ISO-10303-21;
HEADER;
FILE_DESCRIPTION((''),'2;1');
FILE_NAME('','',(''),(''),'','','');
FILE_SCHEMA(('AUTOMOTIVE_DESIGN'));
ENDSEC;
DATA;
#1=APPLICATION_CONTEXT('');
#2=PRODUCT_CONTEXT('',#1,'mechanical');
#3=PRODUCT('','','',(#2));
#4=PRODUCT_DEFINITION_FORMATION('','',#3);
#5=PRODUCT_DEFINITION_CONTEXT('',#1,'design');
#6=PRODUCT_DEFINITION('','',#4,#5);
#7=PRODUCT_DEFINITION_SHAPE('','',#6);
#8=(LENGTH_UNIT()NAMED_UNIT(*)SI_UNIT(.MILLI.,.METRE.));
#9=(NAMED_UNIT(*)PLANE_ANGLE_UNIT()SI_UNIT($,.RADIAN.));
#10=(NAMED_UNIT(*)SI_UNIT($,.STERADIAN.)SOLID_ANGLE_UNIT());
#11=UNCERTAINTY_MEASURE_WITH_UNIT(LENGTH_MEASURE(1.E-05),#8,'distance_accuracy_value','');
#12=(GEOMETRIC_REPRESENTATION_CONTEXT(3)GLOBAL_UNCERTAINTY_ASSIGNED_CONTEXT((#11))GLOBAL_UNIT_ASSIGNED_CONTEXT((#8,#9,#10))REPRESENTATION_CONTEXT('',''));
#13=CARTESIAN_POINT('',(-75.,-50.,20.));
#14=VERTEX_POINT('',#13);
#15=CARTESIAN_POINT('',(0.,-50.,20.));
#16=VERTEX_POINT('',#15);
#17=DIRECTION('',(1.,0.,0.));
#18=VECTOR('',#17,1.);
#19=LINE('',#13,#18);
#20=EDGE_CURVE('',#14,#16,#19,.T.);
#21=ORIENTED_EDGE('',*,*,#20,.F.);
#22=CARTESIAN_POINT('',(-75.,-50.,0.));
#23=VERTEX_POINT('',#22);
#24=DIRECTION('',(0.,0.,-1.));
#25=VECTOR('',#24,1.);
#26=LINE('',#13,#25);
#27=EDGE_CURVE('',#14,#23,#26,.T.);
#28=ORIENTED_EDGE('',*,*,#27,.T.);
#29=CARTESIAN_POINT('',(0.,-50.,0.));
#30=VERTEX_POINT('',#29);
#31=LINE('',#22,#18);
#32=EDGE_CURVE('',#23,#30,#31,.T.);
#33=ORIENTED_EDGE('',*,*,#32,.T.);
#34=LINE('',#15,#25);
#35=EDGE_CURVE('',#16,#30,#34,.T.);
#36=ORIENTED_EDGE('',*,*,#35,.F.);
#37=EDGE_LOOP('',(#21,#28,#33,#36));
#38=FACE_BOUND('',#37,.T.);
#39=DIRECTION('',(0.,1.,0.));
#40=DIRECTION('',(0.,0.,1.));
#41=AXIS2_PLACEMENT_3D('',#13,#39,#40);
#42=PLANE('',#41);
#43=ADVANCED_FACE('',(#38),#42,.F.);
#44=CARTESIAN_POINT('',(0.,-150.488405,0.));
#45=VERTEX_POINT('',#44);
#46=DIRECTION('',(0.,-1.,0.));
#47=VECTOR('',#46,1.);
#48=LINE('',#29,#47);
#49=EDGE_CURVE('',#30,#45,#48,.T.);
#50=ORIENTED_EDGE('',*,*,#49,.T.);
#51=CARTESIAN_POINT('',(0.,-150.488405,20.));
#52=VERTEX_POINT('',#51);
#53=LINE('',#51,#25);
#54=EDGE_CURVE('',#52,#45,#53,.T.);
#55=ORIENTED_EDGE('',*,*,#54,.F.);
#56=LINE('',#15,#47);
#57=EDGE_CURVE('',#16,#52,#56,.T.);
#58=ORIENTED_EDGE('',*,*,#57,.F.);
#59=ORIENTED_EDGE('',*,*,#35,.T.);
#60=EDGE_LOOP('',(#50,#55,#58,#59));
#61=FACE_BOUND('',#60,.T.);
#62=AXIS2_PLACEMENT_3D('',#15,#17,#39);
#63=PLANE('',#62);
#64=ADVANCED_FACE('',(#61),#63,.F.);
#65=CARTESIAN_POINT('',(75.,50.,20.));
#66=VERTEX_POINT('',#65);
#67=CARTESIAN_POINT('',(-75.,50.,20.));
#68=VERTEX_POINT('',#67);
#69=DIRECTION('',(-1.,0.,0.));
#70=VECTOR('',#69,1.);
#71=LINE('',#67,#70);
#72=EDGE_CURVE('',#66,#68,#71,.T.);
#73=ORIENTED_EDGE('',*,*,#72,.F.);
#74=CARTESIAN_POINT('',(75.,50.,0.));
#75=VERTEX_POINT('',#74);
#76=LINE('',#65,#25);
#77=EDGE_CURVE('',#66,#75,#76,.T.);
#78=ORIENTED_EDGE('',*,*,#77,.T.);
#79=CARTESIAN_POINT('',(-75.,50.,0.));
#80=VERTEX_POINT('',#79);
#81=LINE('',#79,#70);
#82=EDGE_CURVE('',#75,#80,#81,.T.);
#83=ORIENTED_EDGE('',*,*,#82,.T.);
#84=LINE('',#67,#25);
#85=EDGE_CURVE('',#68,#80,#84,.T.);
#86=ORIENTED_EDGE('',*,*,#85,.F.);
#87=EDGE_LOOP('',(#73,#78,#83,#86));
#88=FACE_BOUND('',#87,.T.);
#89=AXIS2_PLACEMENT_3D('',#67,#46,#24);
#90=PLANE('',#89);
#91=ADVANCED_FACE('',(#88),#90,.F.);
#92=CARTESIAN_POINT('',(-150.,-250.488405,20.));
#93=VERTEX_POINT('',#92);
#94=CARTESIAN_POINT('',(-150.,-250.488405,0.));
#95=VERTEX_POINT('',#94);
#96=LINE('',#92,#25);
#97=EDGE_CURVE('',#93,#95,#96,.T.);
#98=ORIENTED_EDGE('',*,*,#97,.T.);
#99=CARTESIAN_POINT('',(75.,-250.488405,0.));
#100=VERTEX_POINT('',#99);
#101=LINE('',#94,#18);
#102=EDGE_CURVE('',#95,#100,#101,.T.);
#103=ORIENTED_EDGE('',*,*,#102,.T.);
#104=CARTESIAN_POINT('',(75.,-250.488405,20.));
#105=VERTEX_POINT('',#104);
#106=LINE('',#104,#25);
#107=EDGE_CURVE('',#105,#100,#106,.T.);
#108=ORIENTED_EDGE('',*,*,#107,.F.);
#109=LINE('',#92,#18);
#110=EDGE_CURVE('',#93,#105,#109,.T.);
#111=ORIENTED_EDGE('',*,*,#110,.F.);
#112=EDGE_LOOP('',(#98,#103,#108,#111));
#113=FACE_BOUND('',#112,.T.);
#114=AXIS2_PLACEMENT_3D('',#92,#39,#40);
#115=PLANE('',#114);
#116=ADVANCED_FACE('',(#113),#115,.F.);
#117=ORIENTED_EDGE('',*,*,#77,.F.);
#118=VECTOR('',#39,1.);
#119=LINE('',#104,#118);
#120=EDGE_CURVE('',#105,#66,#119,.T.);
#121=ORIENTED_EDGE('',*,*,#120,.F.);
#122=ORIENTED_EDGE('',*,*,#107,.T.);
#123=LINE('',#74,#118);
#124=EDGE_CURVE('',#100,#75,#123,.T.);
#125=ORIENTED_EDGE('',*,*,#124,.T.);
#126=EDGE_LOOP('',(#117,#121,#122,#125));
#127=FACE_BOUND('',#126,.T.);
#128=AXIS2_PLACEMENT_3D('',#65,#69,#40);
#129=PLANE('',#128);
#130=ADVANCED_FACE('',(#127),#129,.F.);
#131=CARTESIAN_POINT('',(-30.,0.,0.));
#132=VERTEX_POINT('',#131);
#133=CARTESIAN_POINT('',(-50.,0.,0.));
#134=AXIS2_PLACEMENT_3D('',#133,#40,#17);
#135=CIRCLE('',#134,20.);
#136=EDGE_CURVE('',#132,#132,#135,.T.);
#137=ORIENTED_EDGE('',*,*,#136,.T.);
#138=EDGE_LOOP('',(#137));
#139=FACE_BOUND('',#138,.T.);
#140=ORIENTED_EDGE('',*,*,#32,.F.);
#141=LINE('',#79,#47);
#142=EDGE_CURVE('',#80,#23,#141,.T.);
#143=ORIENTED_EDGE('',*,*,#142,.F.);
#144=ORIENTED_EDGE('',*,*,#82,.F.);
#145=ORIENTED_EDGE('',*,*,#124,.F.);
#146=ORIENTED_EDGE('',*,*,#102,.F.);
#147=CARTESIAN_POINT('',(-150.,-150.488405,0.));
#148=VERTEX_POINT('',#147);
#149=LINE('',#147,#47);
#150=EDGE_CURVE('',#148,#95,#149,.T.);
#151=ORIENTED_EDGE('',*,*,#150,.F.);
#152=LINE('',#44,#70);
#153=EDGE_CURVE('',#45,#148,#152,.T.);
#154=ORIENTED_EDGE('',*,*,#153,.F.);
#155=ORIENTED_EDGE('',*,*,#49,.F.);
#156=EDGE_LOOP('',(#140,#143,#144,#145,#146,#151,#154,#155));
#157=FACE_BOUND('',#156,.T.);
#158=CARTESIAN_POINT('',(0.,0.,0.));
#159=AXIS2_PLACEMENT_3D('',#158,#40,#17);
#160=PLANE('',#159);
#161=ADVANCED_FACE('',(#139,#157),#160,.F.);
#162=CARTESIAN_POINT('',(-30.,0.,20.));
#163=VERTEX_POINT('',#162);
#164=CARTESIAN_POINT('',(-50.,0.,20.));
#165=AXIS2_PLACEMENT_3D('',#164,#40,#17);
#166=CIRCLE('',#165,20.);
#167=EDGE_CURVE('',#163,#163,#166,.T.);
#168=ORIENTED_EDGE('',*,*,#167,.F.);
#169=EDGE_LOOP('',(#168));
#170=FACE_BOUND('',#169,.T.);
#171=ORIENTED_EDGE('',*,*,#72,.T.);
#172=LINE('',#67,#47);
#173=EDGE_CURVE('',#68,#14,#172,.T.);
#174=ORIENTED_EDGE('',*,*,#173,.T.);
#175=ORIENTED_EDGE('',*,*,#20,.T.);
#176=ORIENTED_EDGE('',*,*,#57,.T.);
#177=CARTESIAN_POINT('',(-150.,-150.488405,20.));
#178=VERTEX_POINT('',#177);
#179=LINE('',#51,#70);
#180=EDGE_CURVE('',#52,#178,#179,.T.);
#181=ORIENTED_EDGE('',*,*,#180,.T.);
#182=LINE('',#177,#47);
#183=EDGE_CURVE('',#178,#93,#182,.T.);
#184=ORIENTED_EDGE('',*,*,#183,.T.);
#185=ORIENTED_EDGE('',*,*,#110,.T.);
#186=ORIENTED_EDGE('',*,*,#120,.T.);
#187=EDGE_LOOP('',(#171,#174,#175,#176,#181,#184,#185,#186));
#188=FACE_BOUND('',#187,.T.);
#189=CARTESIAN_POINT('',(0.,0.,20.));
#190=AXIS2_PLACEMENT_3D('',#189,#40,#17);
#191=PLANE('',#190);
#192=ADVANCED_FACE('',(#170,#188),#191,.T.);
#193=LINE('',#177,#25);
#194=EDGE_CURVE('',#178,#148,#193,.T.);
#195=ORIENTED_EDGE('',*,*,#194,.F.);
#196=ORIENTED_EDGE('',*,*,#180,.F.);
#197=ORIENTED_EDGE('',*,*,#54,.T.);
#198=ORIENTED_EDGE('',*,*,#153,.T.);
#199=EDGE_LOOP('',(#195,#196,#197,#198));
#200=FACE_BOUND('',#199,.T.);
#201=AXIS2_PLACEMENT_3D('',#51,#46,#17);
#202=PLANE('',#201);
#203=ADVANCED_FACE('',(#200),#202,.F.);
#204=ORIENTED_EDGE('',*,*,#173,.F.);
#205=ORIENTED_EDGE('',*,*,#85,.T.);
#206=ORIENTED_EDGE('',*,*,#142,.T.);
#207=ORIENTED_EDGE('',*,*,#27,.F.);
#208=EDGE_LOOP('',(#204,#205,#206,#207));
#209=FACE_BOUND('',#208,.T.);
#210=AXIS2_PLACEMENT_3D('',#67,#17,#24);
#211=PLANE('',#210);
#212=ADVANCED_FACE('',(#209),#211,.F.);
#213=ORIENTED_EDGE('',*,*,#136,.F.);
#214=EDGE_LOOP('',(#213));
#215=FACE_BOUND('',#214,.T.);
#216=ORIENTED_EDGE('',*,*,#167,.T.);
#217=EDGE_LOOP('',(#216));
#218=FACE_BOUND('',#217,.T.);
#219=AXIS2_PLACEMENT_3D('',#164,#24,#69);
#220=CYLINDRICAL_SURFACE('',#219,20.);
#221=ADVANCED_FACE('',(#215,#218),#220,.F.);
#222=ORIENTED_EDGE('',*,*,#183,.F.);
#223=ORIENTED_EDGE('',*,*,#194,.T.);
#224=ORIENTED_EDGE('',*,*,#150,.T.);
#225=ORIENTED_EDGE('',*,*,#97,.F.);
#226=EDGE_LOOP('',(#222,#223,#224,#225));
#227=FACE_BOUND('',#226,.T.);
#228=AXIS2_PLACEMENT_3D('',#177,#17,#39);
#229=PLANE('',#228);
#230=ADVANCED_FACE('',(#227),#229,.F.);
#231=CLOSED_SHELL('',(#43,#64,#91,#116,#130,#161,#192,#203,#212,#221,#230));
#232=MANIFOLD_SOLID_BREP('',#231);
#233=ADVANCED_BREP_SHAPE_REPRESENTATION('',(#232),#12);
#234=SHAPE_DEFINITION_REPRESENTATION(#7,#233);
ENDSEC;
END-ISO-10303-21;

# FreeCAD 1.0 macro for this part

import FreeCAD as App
import Part
import Sketcher

V = App.Vector

doc = App.newDocument("Part")
body = doc.addObject("PartDesign::Body", "Body")

# Sketch on XY plane
sketch1 = body.newObject("Sketcher::SketchObject", "Sketch")
sketch1.AttachmentSupport = (doc.getObject("XY_Plane"), [""])
sketch1.MapMode = "FlatFace"
sketch1.addGeometry([
    Part.LineSegment(V(75, 50, 0), V(-75, 50, 0)),  # 0
    Part.LineSegment(V(-75, 50, 0), V(-75, -50, 0)),  # 1
    Part.LineSegment(V(-75, -50, 0), V(0, -50, 0)),  # 2
    Part.LineSegment(V(0, -50, 0), V(0, -150, 0)),  # 3
    Part.LineSegment(V(0, -150, 0), V(-150, -150, 0)),  # 4
    Part.LineSegment(V(-150, -150, 0), V(-150, -250, 0)),  # 5
    Part.LineSegment(V(-150, -250, 0), V(75, -250, 0)),  # 6
    Part.LineSegment(V(75, -250, 0), V(75, 50, 0)),  # 7
    Part.Circle(V(-50, 0, 0), V(0, 0, 1), 20),  # 8
], False)
sketch1.addConstraint([
    Sketcher.Constraint("Coincident", 0, 2, 1, 1),
    Sketcher.Constraint("Coincident", 1, 2, 2, 1),
    Sketcher.Constraint("Coincident", 2, 2, 3, 1),
    Sketcher.Constraint("Coincident", 3, 2, 4, 1),
    Sketcher.Constraint("Coincident", 4, 2, 5, 1),
    Sketcher.Constraint("Coincident", 5, 2, 6, 1),
    Sketcher.Constraint("Coincident", 6, 2, 7, 1),
    Sketcher.Constraint("Coincident", 7, 2, 0, 1),
    Sketcher.Constraint("Horizontal", 0),
    Sketcher.Constraint("Vertical", 1),
    Sketcher.Constraint("Horizontal", 2),
    Sketcher.Constraint("Vertical", 3),
    Sketcher.Constraint("Horizontal", 4),
    Sketcher.Constraint("Vertical", 5),
    Sketcher.Constraint("Horizontal", 6),
    Sketcher.Constraint("Vertical", 7),
    Sketcher.Constraint("Symmetric", 1, 2, 7, 2, -1, 1),
    Sketcher.Constraint("PointOnObject", 8, 3, -1),
    Sketcher.Constraint("PointOnObject", 2, 2, -2),
    Sketcher.Constraint("Equal", 0, 4),
    Sketcher.Constraint("Equal", 1, 5),
    Sketcher.Constraint("Diameter", 8, 40.0),
    Sketcher.Constraint("DistanceX", 0, 2, 0, 1, 150.0),
    Sketcher.Constraint("DistanceY", 1, 2, 1, 1, 100.0),
    Sketcher.Constraint("DistanceX", 8, 3, -1, 1, 50.0),
    Sketcher.Constraint("DistanceY", 3, 2, 3, 1, 100.488405),
])
pad1 = body.newObject("PartDesign::Pad", "Pad")
pad1.Profile = sketch1
pad1.Length = 20

doc.recompute()
